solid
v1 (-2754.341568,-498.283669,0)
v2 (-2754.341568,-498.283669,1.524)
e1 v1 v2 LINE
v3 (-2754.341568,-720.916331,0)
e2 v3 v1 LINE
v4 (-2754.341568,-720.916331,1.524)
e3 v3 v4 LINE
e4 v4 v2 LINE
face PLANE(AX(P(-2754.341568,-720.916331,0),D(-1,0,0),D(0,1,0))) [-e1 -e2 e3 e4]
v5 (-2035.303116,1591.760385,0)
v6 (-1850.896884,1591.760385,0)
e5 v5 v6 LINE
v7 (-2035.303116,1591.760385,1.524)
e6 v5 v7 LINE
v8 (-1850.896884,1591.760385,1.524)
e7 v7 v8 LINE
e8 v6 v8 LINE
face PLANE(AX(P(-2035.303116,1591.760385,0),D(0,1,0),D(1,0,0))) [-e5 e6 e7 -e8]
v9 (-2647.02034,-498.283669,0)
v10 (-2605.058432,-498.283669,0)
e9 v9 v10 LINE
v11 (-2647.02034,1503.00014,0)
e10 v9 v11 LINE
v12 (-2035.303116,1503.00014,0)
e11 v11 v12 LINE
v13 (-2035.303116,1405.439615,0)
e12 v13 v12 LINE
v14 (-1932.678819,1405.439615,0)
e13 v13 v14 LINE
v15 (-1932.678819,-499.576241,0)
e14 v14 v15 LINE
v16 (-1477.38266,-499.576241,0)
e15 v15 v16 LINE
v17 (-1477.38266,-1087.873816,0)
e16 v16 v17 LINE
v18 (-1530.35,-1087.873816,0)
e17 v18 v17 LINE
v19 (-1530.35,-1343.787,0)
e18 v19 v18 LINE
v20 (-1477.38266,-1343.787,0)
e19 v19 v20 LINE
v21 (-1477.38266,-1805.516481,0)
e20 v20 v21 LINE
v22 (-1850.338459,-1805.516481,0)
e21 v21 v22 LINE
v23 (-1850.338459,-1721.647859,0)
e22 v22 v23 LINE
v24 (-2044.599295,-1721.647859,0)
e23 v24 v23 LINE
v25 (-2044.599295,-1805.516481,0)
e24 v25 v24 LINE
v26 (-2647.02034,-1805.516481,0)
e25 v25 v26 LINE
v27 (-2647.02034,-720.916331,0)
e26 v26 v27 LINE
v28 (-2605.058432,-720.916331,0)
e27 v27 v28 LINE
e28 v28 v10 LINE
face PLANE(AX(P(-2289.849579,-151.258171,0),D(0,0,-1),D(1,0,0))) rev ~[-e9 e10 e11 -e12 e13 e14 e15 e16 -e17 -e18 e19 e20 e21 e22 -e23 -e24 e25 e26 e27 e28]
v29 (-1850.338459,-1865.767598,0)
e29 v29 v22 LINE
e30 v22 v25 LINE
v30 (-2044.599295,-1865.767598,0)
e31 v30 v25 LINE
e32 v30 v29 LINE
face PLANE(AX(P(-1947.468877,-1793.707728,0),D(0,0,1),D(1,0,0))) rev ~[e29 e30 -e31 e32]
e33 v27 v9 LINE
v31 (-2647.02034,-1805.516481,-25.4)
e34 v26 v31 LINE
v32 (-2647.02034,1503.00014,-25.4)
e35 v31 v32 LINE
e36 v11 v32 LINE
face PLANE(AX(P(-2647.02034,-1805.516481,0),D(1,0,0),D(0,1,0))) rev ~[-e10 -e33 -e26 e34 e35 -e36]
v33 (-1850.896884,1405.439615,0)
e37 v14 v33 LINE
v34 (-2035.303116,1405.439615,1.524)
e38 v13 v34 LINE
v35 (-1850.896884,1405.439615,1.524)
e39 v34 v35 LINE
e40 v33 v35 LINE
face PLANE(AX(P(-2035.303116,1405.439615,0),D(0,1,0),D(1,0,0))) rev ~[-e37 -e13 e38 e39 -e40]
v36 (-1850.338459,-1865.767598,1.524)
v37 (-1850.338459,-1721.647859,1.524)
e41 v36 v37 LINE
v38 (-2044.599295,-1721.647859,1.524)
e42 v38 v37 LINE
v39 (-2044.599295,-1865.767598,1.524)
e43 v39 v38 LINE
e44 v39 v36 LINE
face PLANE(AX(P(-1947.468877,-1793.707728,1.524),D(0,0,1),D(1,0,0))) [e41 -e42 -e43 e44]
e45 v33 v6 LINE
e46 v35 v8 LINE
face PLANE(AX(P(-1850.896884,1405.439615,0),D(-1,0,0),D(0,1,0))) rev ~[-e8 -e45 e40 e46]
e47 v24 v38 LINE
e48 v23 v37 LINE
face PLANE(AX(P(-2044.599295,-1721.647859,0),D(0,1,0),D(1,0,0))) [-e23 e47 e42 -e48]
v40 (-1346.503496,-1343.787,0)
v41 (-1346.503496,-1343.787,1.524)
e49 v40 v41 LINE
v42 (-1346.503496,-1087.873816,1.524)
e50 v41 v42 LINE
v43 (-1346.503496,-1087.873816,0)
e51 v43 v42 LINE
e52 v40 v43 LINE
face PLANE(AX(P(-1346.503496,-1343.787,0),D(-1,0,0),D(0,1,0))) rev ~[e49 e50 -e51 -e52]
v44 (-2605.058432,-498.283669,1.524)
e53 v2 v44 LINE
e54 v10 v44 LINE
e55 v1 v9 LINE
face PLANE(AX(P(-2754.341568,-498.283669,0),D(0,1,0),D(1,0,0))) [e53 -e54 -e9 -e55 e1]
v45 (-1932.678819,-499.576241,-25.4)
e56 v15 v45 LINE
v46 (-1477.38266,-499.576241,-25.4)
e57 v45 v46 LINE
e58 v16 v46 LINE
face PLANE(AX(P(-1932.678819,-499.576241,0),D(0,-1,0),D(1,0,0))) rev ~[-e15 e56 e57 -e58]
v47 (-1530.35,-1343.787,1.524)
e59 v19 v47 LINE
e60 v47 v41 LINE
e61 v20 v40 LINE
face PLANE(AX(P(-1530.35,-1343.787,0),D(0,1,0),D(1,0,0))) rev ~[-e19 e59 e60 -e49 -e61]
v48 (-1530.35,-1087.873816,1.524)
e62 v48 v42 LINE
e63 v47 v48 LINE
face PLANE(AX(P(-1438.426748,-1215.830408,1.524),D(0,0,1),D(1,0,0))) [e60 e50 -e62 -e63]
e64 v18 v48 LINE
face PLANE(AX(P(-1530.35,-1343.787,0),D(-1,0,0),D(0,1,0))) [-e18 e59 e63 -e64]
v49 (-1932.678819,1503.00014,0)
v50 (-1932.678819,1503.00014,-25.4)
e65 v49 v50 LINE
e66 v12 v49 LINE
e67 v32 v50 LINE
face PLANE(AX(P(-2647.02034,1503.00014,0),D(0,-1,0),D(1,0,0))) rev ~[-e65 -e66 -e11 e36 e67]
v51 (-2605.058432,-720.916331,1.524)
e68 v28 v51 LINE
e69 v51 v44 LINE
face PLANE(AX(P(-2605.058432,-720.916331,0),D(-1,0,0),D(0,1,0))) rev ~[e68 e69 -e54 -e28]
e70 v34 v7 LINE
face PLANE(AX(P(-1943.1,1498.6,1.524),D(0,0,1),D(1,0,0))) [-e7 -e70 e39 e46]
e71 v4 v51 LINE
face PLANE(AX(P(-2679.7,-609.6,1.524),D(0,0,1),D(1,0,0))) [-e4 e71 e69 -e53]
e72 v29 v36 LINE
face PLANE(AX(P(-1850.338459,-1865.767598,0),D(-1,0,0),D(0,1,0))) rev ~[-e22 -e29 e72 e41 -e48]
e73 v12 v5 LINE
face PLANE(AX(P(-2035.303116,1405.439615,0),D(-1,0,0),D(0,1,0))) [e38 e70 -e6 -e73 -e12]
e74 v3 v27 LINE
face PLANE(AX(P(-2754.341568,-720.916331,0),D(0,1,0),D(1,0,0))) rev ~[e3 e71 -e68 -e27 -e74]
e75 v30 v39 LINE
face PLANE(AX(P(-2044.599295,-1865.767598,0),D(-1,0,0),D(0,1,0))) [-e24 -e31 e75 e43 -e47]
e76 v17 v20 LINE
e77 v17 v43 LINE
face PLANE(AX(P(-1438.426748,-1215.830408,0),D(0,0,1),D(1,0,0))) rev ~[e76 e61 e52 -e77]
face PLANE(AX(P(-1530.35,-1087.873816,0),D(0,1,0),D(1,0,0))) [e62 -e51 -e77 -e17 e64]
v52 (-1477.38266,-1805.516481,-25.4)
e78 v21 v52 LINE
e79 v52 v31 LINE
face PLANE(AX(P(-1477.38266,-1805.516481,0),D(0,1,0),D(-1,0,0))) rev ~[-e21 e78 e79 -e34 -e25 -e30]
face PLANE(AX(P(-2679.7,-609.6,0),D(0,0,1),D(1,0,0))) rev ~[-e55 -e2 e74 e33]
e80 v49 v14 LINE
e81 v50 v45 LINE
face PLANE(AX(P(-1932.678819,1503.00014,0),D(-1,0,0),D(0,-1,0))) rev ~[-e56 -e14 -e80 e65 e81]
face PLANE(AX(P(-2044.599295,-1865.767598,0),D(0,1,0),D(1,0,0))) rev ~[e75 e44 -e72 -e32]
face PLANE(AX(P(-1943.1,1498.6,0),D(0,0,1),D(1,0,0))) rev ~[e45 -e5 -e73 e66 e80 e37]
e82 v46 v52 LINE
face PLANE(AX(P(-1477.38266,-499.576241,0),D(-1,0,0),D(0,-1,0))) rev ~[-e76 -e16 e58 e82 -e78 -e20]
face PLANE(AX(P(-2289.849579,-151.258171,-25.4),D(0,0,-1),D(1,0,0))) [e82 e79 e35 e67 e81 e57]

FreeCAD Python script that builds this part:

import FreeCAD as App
import Part
import Sketcher
Q = App.Units.Quantity

doc = App.newDocument("Part")
body = doc.addObject("PartDesign::Body", "Body")

sketch1 = body.newObject("Sketcher::SketchObject", "Sketch")
sketch1.AttachmentSupport = (doc.getObject("XY_Plane"), [""])
sketch1.MapMode = "FlatFace"
sketch1.addGeometry([
    Part.LineSegment(App.Vector(-2044.599295, -1721.647859, 0), App.Vector(-2044.599295, -1865.767598, 0)),
    Part.LineSegment(App.Vector(-2044.599295, -1865.767598, 0), App.Vector(-1850.338459, -1865.767598, 0)),
    Part.LineSegment(App.Vector(-1850.338459, -1865.767598, 0), App.Vector(-1850.338459, -1721.647859, 0)),
    Part.LineSegment(App.Vector(-1850.338459, -1721.647859, 0), App.Vector(-2044.599295, -1721.647859, 0)),
], False)
sketch1.addConstraint([
    Sketcher.Constraint("Coincident", 0, 2, 1, 1),
    Sketcher.Constraint("Coincident", 1, 2, 2, 1),
    Sketcher.Constraint("Coincident", 2, 2, 3, 1),
    Sketcher.Constraint("Coincident", 3, 2, 0, 1),
    Sketcher.Constraint("Vertical", 0),
    Sketcher.Constraint("Horizontal", 1),
    Sketcher.Constraint("Vertical", 2),
    Sketcher.Constraint("Horizontal", 3),
    Sketcher.Constraint("DistanceY", 0, 2, 0, 1, 144.11974),
    Sketcher.Constraint("DistanceY", 0, 2, -1, 1, 1865.767598),
    Sketcher.Constraint("DistanceX", 1, 1, 1, 2, 194.260836),
    Sketcher.Constraint("DistanceX", 1, 2, -1, 1, 1850.338459),
])
pad1 = body.newObject("PartDesign::Pad", "Pad")
pad1.Profile = sketch1
pad1.Length = Q("0.06 in")
body2 = doc.addObject("PartDesign::Body", "Body001")

sketch2 = body2.newObject("Sketcher::SketchObject", "Sketch001")
sketch2.AttachmentSupport = (doc.getObject("XY_Plane001"), [""])
sketch2.MapMode = "FlatFace"
sketch2.addGeometry([
    Part.LineSegment(App.Vector(-2035.303116, 1591.760385, 0), App.Vector(-2035.303116, 1405.439615, 0)),
    Part.LineSegment(App.Vector(-2035.303116, 1405.439615, 0), App.Vector(-1850.896884, 1405.439615, 0)),
    Part.LineSegment(App.Vector(-1850.896884, 1405.439615, 0), App.Vector(-1850.896884, 1591.760385, 0)),
    Part.LineSegment(App.Vector(-1850.896884, 1591.760385, 0), App.Vector(-2035.303116, 1591.760385, 0)),
], False)
sketch2.addConstraint([
    Sketcher.Constraint("Coincident", 0, 2, 1, 1),
    Sketcher.Constraint("Coincident", 1, 2, 2, 1),
    Sketcher.Constraint("Coincident", 2, 2, 3, 1),
    Sketcher.Constraint("Coincident", 3, 2, 0, 1),
    Sketcher.Constraint("Vertical", 0),
    Sketcher.Constraint("Horizontal", 1),
    Sketcher.Constraint("Vertical", 2),
    Sketcher.Constraint("Horizontal", 3),
    Sketcher.Constraint("DistanceX", 1, 1, 1, 2, 184.406232),
    Sketcher.Constraint("DistanceY", 0, 2, 0, 1, 186.320769),
    Sketcher.Constraint("DistanceX", 0, 2, -1, 1, 2035.303116),
    Sketcher.Constraint("DistanceY", -1, 1, 0, 2, 1405.439615),
])
pad2 = body2.newObject("PartDesign::Pad", "Pad001")
pad2.Profile = sketch2
pad2.Length = Q("0.06 in")
body3 = doc.addObject("PartDesign::Body", "Body002")

sketch3 = body3.newObject("Sketcher::SketchObject", "Sketch002")
sketch3.AttachmentSupport = (doc.getObject("XY_Plane002"), [""])
sketch3.MapMode = "FlatFace"
sketch3.addGeometry([
    Part.LineSegment(App.Vector(-2754.341568, -498.283669, 0), App.Vector(-2754.341568, -720.916331, 0)),
    Part.LineSegment(App.Vector(-2754.341568, -720.916331, 0), App.Vector(-2605.058432, -720.916331, 0)),
    Part.LineSegment(App.Vector(-2605.058432, -720.916331, 0), App.Vector(-2605.058432, -498.283669, 0)),
    Part.LineSegment(App.Vector(-2605.058432, -498.283669, 0), App.Vector(-2754.341568, -498.283669, 0)),
], False)
sketch3.addConstraint([
    Sketcher.Constraint("Coincident", 0, 2, 1, 1),
    Sketcher.Constraint("Coincident", 1, 2, 2, 1),
    Sketcher.Constraint("Coincident", 2, 2, 3, 1),
    Sketcher.Constraint("Coincident", 3, 2, 0, 1),
    Sketcher.Constraint("Vertical", 0),
    Sketcher.Constraint("Horizontal", 1),
    Sketcher.Constraint("Vertical", 2),
    Sketcher.Constraint("Horizontal", 3),
    Sketcher.Constraint("DistanceY", 0, 2, 0, 1, 222.632662),
    Sketcher.Constraint("DistanceX", 1, 1, 1, 2, 149.283137),
    Sketcher.Constraint("DistanceX", 0, 2, -1, 1, 2754.341568),
    Sketcher.Constraint("DistanceY", 0, 2, -1, 1, 720.916331),
])
pad3 = body3.newObject("PartDesign::Pad", "Pad002")
pad3.Profile = sketch3
pad3.Length = Q("0.06 in")
body4 = doc.addObject("PartDesign::Body", "Body003")

sketch4 = body4.newObject("Sketcher::SketchObject", "Sketch003")
sketch4.AttachmentSupport = (doc.getObject("XY_Plane003"), [""])
sketch4.MapMode = "FlatFace"
sketch4.addGeometry([
    Part.LineSegment(App.Vector(-1530.35, -1087.873816, 0), App.Vector(-1530.35, -1343.787, 0)),
    Part.LineSegment(App.Vector(-1530.35, -1343.787, 0), App.Vector(-1346.503496, -1343.787, 0)),
    Part.LineSegment(App.Vector(-1346.503496, -1343.787, 0), App.Vector(-1346.503496, -1087.873816, 0)),
    Part.LineSegment(App.Vector(-1346.503496, -1087.873816, 0), App.Vector(-1530.35, -1087.873816, 0)),
], False)
sketch4.addConstraint([
    Sketcher.Constraint("Coincident", 0, 2, 1, 1),
    Sketcher.Constraint("Coincident", 1, 2, 2, 1),
    Sketcher.Constraint("Coincident", 2, 2, 3, 1),
    Sketcher.Constraint("Coincident", 3, 2, 0, 1),
    Sketcher.Constraint("Vertical", 0),
    Sketcher.Constraint("Horizontal", 1),
    Sketcher.Constraint("Vertical", 2),
    Sketcher.Constraint("Horizontal", 3),
    Sketcher.Constraint("DistanceX", 0, 2, -1, 1, Q("60.25 in")),
    Sketcher.Constraint("DistanceY", 0, 2, -1, 1, Q("52.905 in")),
    Sketcher.Constraint("DistanceX", 1, 1, 1, 2, 183.846504),
    Sketcher.Constraint("DistanceY", 0, 2, 0, 1, 255.913184),
])
pad4 = body4.newObject("PartDesign::Pad", "Pad003")
pad4.Profile = sketch4
pad4.Length = Q("0.06 in")
body.AllowCompound = True
doc.recompute()

boolean = body.newObject("PartDesign::Boolean", "Boolean")
boolean.Type = "Fuse"
boolean.addObjects([body2])
doc.recompute()

boolean2 = body.newObject("PartDesign::Boolean", "Boolean001")
boolean2.Type = "Fuse"
boolean2.addObjects([body3])
doc.recompute()

boolean3 = body.newObject("PartDesign::Boolean", "Boolean002")
boolean3.Type = "Fuse"
boolean3.addObjects([body4])

sketch5 = body.newObject("Sketcher::SketchObject", "Sketch004")
sketch5.AttachmentSupport = (doc.getObject("XY_Plane"), [""])
sketch5.MapMode = "FlatFace"
sketch5.addGeometry([
    Part.LineSegment(App.Vector(-2647.02034, 1503.00014, 0), App.Vector(-1932.678819, 1503.00014, 0)),
    Part.LineSegment(App.Vector(-1932.678819, 1503.00014, 0), App.Vector(-1932.678819, -499.576241, 0)),
    Part.LineSegment(App.Vector(-1932.678819, -499.576241, 0), App.Vector(-1477.38266, -499.576241, 0)),
    Part.LineSegment(App.Vector(-1477.38266, -499.576241, 0), App.Vector(-1477.38266, -1805.516481, 0)),
    Part.LineSegment(App.Vector(-1477.38266, -1805.516481, 0), App.Vector(-2647.02034, -1805.516481, 0)),
    Part.LineSegment(App.Vector(-2647.02034, -1805.516481, 0), App.Vector(-2647.02034, 1503.00014, 0)),
], False)
sketch5.addConstraint([
    Sketcher.Constraint("Coincident", 0, 2, 1, 1),
    Sketcher.Constraint("Coincident", 1, 2, 2, 1),
    Sketcher.Constraint("Coincident", 2, 2, 3, 1),
    Sketcher.Constraint("Coincident", 3, 2, 4, 1),
    Sketcher.Constraint("Coincident", 4, 2, 5, 1),
    Sketcher.Constraint("Coincident", 5, 2, 0, 1),
    Sketcher.Constraint("Horizontal", 0),
    Sketcher.Constraint("Vertical", 1),
    Sketcher.Constraint("Horizontal", 2),
    Sketcher.Constraint("Vertical", 3),
    Sketcher.Constraint("Horizontal", 4),
    Sketcher.Constraint("Vertical", 5),
    Sketcher.Constraint("DistanceX", 0, 1, 0, 2, 714.341521),
    Sketcher.Constraint("DistanceX", 2, 1, 2, 2, 455.296159),
    Sketcher.Constraint("DistanceY", 1, 2, 1, 1, 2002.576381),
    Sketcher.Constraint("DistanceY", 3, 2, 3, 1, 1305.940241),
    Sketcher.Constraint("DistanceX", 0, 2, -1, 1, 1932.678819),
    Sketcher.Constraint("DistanceY", -1, 1, 0, 2, 1503.00014),
])
pad5 = body.newObject("PartDesign::Pad", "Pad004")
pad5.Profile = sketch5
pad5.Length = Q("1 in")
pad5.Reversed = True

doc.recompute()
